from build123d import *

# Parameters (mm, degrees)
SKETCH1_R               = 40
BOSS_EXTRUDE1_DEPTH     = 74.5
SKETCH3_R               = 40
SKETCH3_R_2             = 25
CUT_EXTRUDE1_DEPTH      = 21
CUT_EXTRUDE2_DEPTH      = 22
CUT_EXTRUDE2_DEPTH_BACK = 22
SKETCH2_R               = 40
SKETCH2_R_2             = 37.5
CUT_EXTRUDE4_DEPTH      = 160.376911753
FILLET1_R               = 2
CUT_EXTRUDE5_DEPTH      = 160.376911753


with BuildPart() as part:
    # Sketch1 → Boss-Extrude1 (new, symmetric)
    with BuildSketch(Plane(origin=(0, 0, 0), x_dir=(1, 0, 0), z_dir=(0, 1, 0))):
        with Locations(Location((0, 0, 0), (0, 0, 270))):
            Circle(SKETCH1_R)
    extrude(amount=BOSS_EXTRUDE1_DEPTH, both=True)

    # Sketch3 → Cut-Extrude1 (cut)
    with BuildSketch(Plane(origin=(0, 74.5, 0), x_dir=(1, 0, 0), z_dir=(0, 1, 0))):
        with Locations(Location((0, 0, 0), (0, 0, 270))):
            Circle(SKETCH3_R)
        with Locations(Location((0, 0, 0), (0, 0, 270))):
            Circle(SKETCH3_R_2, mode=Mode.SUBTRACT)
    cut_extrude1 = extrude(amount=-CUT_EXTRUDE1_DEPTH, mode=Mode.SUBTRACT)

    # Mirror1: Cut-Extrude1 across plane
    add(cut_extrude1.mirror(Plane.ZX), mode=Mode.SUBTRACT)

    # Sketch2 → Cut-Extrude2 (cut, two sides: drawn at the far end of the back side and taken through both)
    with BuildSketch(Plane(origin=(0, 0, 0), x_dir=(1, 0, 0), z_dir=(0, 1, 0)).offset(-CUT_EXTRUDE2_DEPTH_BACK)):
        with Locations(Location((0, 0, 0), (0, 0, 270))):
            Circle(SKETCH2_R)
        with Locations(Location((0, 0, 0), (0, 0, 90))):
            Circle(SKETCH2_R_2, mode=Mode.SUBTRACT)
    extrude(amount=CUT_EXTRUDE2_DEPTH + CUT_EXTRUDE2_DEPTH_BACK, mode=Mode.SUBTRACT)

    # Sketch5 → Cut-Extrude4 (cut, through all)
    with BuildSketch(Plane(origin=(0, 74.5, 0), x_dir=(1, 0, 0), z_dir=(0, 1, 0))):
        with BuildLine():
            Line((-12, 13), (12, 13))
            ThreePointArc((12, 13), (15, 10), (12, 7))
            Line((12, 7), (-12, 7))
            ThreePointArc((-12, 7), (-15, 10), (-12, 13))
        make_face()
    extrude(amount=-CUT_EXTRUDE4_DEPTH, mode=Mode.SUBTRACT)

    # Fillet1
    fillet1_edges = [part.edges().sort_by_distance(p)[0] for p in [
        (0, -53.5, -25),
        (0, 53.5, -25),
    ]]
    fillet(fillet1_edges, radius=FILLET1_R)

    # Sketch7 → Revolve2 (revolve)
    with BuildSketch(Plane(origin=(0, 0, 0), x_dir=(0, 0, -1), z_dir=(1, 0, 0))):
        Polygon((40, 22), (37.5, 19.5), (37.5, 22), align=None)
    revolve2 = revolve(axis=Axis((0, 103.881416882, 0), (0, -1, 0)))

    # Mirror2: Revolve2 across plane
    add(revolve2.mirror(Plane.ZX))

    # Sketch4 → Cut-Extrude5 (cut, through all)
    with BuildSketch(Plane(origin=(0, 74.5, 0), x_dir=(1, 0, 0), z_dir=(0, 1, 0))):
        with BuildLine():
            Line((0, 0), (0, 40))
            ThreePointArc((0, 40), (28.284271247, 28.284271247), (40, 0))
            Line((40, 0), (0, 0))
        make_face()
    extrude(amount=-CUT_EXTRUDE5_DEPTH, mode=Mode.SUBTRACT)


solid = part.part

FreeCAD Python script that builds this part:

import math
import FreeCAD as App
import Part
import Sketcher

V = App.Vector
Q = App.Units.Quantity


def edges_at(feature, points):
    """Names of the edges that pass closest to the given points."""
    edges = feature.Shape.Edges
    near = lambda p: min(range(len(edges)), key=lambda i: edges[i].distToShape(Part.Vertex(*p))[0])
    return sorted({f"Edge{near(p) + 1}" for p in points})


def add_polygon(sketch, points):
    """Adds a closed chain of lines whose ends are joined by coincident constraints."""
    first, n = sketch.GeometryCount, len(points)
    for a, b in zip(points, points[1:] + points[:1]):
        sketch.addGeometry(Part.LineSegment(App.Vector(*a, 0), App.Vector(*b, 0)), False)
    for i in range(n):
        sketch.addConstraint(Sketcher.Constraint("Coincident", first + i, 2, first + (i + 1) % n, 1))

doc = App.newDocument("Part")
body = doc.addObject("PartDesign::Body", "Body")

# Sketch on XZ plane
sketch1 = doc.addObject("Sketcher::SketchObject", "Sketch")
body.addObject(sketch1)
sketch1.AttachmentSupport = (doc.XZ_Plane, [""])
sketch1.MapMode = "FlatFace"
sketch1.addGeometry(Part.Circle(V(0, 0, 0), V(0, 0, 1), 40), False)
sketch1.addConstraint(Sketcher.Constraint("Coincident", 0, 3, -1, 1))
sketch1.addConstraint(Sketcher.Constraint("Diameter", 0, Q("80 mm")))
pad1 = doc.addObject("PartDesign::Pad", "Pad")
body.addObject(pad1)
pad1.Profile = sketch1
pad1.Length = 149
pad1.Midplane = True

# Sketch on XZ plane
sketch2 = doc.addObject("Sketcher::SketchObject", "Sketch001")
body.addObject(sketch2)
sketch2.AttachmentSupport = (doc.XZ_Plane, [""])
sketch2.MapMode = "FlatFace"
sketch2.AttachmentOffset = App.Placement(V(0, 0, -74.5), App.Rotation())
sketch2.addGeometry(Part.Circle(V(0, 0, 0), V(0, 0, 1), 40), False)
sketch2.addGeometry(Part.Circle(V(0, 0, 0), V(0, 0, 1), 25), False)
sketch2.addConstraint(Sketcher.Constraint("Coincident", 0, 3, -1, 1))
sketch2.addConstraint(Sketcher.Constraint("Coincident", 1, 3, -1, 1))
sketch2.addConstraint(Sketcher.Constraint("Diameter", 0, Q("80 mm")))
sketch2.addConstraint(Sketcher.Constraint("Diameter", 1, Q("50 mm")))
pocket1 = doc.addObject("PartDesign::Pocket", "Pocket")
body.addObject(pocket1)
pocket1.Profile = sketch2
pocket1.Length = 21
pocket1.Reversed = True
doc.recompute()

mirrored = doc.addObject("PartDesign::Mirrored", "Mirrored")
body.addObject(mirrored)
mirrored.Originals = [pocket1]
mirrored.MirrorPlane = (doc.XZ_Plane, [""])
body.Tip = mirrored

# Sketch on XZ plane
sketch3 = doc.addObject("Sketcher::SketchObject", "Sketch002")
body.addObject(sketch3)
sketch3.AttachmentSupport = (doc.XZ_Plane, [""])
sketch3.MapMode = "FlatFace"
sketch3.addGeometry(Part.Circle(V(0, 0, 0), V(0, 0, 1), 40), False)
sketch3.addGeometry(Part.Circle(V(0, 0, 0), V(0, 0, 1), 38), False)
sketch3.addConstraint(Sketcher.Constraint("Coincident", 0, 3, -1, 1))
sketch3.addConstraint(Sketcher.Constraint("Coincident", 1, 3, -1, 1))
sketch3.addConstraint(Sketcher.Constraint("Diameter", 0, Q("80 mm")))
sketch3.addConstraint(Sketcher.Constraint("Diameter", 1, Q("75 mm")))
pocket2 = doc.addObject("PartDesign::Pocket", "Pocket001")
body.addObject(pocket2)
pocket2.Profile = sketch3
pocket2.Type = "TwoLengths"
pocket2.Length = 22
pocket2.Length2 = 22

# Sketch on XZ plane
sketch4 = doc.addObject("Sketcher::SketchObject", "Sketch003")
body.addObject(sketch4)
sketch4.AttachmentSupport = (doc.XZ_Plane, [""])
sketch4.MapMode = "FlatFace"
sketch4.AttachmentOffset = App.Placement(V(0, 0, -74.5), App.Rotation())
sketch4.addGeometry(Part.LineSegment(V(12, -13, 0), V(-12, -13, 0)), False)
sketch4.addGeometry(Part.ArcOfCircle(Part.Circle(V(-12, -10, 0), V(0, 0, 1), 3), math.radians(90), math.radians(270)), False)
sketch4.addGeometry(Part.LineSegment(V(-12, -7, 0), V(12, -7, 0)), False)
sketch4.addGeometry(Part.ArcOfCircle(Part.Circle(V(12, -10, 0), V(0, 0, 1), 3), math.radians(-90), math.radians(90)), False)
sketch4.addConstraint(Sketcher.Constraint("Tangent", 0, 2, 1, 2))
sketch4.addConstraint(Sketcher.Constraint("Tangent", 1, 1, 2, 1))
sketch4.addConstraint(Sketcher.Constraint("Tangent", 2, 2, 3, 2))
sketch4.addConstraint(Sketcher.Constraint("Tangent", 3, 1, 0, 1))
sketch4.addConstraint(Sketcher.Constraint("Horizontal", 0))
sketch4.addConstraint(Sketcher.Constraint("Horizontal", 2))
sketch4.addConstraint(Sketcher.Constraint("Radius", 1, Q("3 mm")))
sketch4.addConstraint(Sketcher.Constraint("DistanceX", 0, 2, 0, 1, Q("24 mm")))
sketch4.addConstraint(Sketcher.Constraint("DistanceX", 1, 3, -1, 1, Q("12 mm")))
sketch4.addConstraint(Sketcher.Constraint("DistanceY", 1, 3, -1, 1, Q("10 mm")))
pocket3 = doc.addObject("PartDesign::Pocket", "Pocket002")
body.addObject(pocket3)
pocket3.Profile = sketch4
pocket3.Type = "ThroughAll"
pocket3.Reversed = True
doc.recompute()

fillet = doc.addObject("PartDesign::Fillet", "Fillet")
body.addObject(fillet)
fillet.Base = (pocket3, edges_at(pocket3, [(0, -53.5, -25), (0, 53.5, -25)]))
fillet.Radius = 2

# Sketch on YZ plane
sketch5 = doc.addObject("Sketcher::SketchObject", "Sketch004")
body.addObject(sketch5)
sketch5.AttachmentSupport = (doc.YZ_Plane, [""])
sketch5.MapMode = "FlatFace"
add_polygon(sketch5, [(19.5, -37.5), (22, -40), (22, -37.5)])  # lines 0-2
sketch5.addConstraint(Sketcher.Constraint("Vertical", 1))
sketch5.addConstraint(Sketcher.Constraint("Horizontal", 2))
sketch5.addConstraint(Sketcher.Constraint("Equal", 2, 1))
sketch5.addConstraint(Sketcher.Constraint("DistanceX", 2, 2, 2, 1, Q("2.5 mm")))
sketch5.addConstraint(Sketcher.Constraint("DistanceX", -1, 1, 0, 2, Q("22 mm")))
sketch5.addConstraint(Sketcher.Constraint("DistanceY", 0, 2, -1, 1, Q("40 mm")))
revolution = doc.addObject("PartDesign::Revolution", "Revolution")
body.addObject(revolution)
revolution.Profile = sketch5
revolution.ReferenceAxis = (sketch5, ["H_Axis"])
revolution.Angle = 360
doc.recompute()

mirrored2 = doc.addObject("PartDesign::Mirrored", "Mirrored001")
body.addObject(mirrored2)
mirrored2.Originals = [revolution]
mirrored2.MirrorPlane = (doc.XZ_Plane, [""])
body.Tip = mirrored2

# Sketch on XZ plane
sketch6 = doc.addObject("Sketcher::SketchObject", "Sketch005")
body.addObject(sketch6)
sketch6.AttachmentSupport = (doc.XZ_Plane, [""])
sketch6.MapMode = "FlatFace"
sketch6.AttachmentOffset = App.Placement(V(0, 0, -74.5), App.Rotation())
sketch6.addGeometry(Part.LineSegment(V(0, -40, 0), V(0, 0, 0)), False)
sketch6.addGeometry(Part.LineSegment(V(0, 0, 0), V(40, 0, 0)), False)
sketch6.addGeometry(Part.ArcOfCircle(Part.Circle(V(0, 0, 0), V(0, 0, 1), 40), math.radians(-90), math.radians(0)), False)
sketch6.addConstraint(Sketcher.Constraint("Coincident", 0, 2, 1, 1))
sketch6.addConstraint(Sketcher.Constraint("Coincident", 1, 2, 2, 2))
sketch6.addConstraint(Sketcher.Constraint("Coincident", 2, 1, 0, 1))
sketch6.addConstraint(Sketcher.Constraint("Vertical", 0))
sketch6.addConstraint(Sketcher.Constraint("Horizontal", 1))
sketch6.addConstraint(Sketcher.Constraint("Coincident", 2, 3, -1, 1))
sketch6.addConstraint(Sketcher.Constraint("Coincident", 0, 2, -1, 1))
sketch6.addConstraint(Sketcher.Constraint("Radius", 2, Q("40 mm")))
pocket4 = doc.addObject("PartDesign::Pocket", "Pocket003")
body.addObject(pocket4)
pocket4.Profile = sketch6
pocket4.Type = "ThroughAll"
pocket4.Reversed = True

doc.recompute()
